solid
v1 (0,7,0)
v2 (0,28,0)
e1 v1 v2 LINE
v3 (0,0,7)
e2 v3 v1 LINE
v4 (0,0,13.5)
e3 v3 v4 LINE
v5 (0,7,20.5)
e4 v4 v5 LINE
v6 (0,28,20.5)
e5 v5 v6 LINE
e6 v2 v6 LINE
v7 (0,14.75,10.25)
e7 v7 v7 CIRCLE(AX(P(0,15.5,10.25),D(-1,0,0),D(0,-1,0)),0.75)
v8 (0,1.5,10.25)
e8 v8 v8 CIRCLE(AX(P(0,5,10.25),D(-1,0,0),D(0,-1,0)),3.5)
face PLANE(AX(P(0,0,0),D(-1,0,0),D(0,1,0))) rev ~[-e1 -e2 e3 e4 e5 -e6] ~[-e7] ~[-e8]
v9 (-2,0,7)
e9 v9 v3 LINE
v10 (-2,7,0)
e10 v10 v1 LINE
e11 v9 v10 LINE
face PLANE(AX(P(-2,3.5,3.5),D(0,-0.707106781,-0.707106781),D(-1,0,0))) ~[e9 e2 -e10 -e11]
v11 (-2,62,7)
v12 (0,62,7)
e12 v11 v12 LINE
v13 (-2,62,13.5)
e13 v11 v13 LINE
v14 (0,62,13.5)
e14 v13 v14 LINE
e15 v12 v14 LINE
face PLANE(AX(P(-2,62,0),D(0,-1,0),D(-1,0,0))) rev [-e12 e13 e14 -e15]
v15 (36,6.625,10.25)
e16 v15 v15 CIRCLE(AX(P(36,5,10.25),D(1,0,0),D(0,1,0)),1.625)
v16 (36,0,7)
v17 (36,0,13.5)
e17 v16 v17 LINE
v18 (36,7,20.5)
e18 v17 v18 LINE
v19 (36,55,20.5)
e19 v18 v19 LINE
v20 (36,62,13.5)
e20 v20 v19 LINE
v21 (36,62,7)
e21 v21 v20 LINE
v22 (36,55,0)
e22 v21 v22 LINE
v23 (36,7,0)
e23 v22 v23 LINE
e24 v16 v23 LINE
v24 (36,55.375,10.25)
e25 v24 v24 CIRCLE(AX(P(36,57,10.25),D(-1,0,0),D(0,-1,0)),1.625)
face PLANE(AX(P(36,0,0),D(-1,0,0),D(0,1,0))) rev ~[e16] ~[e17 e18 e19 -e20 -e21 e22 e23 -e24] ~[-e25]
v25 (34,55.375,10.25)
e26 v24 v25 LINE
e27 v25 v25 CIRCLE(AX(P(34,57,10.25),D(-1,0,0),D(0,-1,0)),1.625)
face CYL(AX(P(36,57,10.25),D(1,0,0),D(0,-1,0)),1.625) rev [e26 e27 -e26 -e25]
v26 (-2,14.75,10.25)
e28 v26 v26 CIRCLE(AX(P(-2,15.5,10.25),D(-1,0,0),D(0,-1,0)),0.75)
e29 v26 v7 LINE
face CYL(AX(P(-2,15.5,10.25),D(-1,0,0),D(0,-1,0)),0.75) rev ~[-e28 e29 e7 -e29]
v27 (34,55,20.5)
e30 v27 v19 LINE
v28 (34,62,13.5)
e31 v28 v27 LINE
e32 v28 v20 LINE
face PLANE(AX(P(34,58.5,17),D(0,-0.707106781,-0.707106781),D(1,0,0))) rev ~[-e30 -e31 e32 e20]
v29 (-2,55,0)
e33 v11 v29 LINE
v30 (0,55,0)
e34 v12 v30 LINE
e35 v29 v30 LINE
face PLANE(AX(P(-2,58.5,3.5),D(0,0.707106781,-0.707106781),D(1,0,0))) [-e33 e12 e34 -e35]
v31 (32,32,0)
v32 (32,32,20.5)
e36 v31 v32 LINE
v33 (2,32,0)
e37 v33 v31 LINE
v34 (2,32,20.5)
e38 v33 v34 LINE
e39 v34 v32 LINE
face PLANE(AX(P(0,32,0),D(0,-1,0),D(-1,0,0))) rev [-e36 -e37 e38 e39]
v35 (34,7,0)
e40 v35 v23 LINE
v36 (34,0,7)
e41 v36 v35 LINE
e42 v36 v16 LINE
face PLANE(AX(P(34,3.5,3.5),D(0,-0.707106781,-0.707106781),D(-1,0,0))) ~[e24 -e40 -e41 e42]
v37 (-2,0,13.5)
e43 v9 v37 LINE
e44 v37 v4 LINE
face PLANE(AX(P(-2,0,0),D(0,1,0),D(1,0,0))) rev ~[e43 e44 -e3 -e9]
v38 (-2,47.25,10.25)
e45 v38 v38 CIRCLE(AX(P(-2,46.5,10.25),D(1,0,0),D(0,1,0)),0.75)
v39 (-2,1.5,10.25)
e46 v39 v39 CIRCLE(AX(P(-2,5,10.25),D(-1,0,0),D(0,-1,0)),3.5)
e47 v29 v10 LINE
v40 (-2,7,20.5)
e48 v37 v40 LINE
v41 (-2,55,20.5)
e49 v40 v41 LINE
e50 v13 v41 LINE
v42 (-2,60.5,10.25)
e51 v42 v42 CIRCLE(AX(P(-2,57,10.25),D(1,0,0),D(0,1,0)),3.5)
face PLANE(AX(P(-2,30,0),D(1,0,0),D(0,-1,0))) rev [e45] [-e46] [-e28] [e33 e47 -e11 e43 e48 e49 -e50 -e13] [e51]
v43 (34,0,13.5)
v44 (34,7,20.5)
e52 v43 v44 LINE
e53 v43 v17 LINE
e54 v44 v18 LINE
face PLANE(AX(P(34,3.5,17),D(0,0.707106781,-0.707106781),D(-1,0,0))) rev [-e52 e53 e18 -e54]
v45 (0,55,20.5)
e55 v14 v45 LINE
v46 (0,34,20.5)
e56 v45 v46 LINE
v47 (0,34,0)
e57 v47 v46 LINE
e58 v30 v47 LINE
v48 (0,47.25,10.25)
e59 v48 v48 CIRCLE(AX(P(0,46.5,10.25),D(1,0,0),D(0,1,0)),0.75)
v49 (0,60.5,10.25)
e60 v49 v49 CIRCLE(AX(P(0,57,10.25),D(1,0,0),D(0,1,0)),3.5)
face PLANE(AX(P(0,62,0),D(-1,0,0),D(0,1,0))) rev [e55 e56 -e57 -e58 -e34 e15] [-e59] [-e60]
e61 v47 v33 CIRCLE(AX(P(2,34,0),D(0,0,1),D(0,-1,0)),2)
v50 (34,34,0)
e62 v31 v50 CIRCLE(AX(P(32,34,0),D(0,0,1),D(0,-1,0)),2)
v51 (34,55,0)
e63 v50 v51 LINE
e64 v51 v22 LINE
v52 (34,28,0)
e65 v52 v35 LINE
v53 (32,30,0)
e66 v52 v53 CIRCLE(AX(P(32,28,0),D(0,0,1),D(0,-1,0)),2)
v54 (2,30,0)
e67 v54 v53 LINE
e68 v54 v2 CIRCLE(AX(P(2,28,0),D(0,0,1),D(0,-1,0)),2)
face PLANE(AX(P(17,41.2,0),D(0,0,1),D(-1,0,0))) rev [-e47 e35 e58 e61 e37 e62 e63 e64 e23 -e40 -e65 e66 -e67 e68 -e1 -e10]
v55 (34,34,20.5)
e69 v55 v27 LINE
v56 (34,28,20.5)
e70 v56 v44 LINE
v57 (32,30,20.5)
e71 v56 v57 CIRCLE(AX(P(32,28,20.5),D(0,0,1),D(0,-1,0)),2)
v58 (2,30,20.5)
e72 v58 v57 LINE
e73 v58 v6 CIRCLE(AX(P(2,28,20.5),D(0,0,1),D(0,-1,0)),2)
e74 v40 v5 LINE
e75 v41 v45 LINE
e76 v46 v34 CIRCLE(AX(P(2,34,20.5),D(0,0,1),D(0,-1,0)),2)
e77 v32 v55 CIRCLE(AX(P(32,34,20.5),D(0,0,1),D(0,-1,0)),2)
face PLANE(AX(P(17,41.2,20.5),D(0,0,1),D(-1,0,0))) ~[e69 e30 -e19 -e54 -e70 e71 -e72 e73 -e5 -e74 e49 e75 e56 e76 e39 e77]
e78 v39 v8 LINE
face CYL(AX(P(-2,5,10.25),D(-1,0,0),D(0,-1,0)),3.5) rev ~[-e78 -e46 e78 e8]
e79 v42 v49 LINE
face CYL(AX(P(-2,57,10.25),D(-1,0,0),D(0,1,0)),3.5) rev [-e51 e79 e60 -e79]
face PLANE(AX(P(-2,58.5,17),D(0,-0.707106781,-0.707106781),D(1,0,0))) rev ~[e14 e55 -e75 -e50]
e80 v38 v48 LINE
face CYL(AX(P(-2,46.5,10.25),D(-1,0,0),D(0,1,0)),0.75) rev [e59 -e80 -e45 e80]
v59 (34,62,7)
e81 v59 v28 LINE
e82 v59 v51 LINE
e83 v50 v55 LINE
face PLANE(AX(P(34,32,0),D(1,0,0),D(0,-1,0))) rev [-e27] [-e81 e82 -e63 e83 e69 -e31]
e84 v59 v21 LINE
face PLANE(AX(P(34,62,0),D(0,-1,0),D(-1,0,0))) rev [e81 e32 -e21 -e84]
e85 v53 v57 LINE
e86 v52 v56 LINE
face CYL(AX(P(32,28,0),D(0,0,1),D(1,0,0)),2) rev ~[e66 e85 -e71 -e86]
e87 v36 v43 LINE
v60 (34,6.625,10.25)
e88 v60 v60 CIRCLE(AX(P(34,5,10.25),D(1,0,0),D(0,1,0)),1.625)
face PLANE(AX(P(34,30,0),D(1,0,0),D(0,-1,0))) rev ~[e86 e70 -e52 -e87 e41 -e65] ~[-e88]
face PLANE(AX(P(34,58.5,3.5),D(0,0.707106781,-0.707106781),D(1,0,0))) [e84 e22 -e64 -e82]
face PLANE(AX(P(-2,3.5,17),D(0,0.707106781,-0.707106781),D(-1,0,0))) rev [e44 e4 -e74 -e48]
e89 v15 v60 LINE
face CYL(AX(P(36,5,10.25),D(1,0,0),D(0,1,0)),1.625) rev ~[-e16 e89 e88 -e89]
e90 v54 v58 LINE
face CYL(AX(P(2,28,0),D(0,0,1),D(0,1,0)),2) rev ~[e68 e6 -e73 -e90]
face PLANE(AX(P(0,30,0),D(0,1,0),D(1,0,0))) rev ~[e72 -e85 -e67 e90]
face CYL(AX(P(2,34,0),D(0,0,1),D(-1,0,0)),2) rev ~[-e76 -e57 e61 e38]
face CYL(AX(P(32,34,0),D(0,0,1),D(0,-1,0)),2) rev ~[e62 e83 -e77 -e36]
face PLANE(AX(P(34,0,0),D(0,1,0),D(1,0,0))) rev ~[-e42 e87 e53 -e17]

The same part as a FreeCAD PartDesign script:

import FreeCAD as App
import Part
import Sketcher
from FreeCAD import Vector
Q = App.Units.Quantity


def edges_at(feature, points):
    """Names of the edges that pass closest to the given points."""
    edges = feature.Shape.Edges
    near = lambda p: min(range(len(edges)), key=lambda i: edges[i].distToShape(Part.Vertex(*p))[0])
    return sorted({f"Edge{near(p) + 1}" for p in points})


def add_polygon(sketch, points):
    """Adds a closed chain of lines whose ends are joined by coincident constraints."""
    first, n = sketch.GeometryCount, len(points)
    for a, b in zip(points, points[1:] + points[:1]):
        sketch.addGeometry(Part.LineSegment(App.Vector(*a, 0), App.Vector(*b, 0)), False)
    for i in range(n):
        sketch.addConstraint(Sketcher.Constraint("Coincident", first + i, 2, first + (i + 1) % n, 1))

doc = App.newDocument("Part")
params = doc.addObject("Spreadsheet::Sheet", "Params")
for row, (alias, value) in enumerate([
    ("sketch1_width", "2 mm"),
    ("sketch1_width2", "34 mm"),
    ("sketch1_height", "30 mm"),
    ("sketch1_height2", "32 mm"),
    ("pad1_length", "20.5 mm"),
    ("chamfer_size", "7 mm"),
    ("sketch2_diameter", "7 mm"),
    ("sketch2_diameter2", "1.5 mm"),
    ("pocket1_length", "25 mm"),
    ("sketch3_diameter", "3.25 mm"),
    ("pocket2_length", "25 mm"),
    ("fillet_radius", "2 mm"),
], start=1):
    params.set(f"A{row}", alias)
    params.set(f"B{row}", "=" + value)
    params.setAlias(f"B{row}", alias)

body = doc.addObject("PartDesign::Body", "Body")

# Sketch on XY plane
sketch1 = body.newObject("Sketcher::SketchObject", "Sketch")
sketch1.AttachmentSupport = (doc.getObject("XY_Plane"), [""])
sketch1.MapMode = "FlatFace"
add_polygon(sketch1, [(-2, 0), (0, 0), (0, 30), (34, 30), (34, 0), (36, 0), (36, 32), (-2, 32)])  # lines 0-7
sketch1.addConstraint(Sketcher.Constraint("Horizontal", 0))
sketch1.addConstraint(Sketcher.Constraint("Vertical", 1))
sketch1.addConstraint(Sketcher.Constraint("Horizontal", 2))
sketch1.addConstraint(Sketcher.Constraint("Vertical", 3))
sketch1.addConstraint(Sketcher.Constraint("Horizontal", 4))
sketch1.addConstraint(Sketcher.Constraint("Vertical", 5))
sketch1.addConstraint(Sketcher.Constraint("Horizontal", 6))
sketch1.addConstraint(Sketcher.Constraint("Vertical", 7))
sketch1.addConstraint(Sketcher.Constraint("Coincident", 0, 2, -1, 1))
sketch1.addConstraint(Sketcher.Constraint("PointOnObject", 3, 2, -1))
sketch1.addConstraint(Sketcher.Constraint("Equal", 0, 4))
sketch1.addConstraint(Sketcher.Constraint("DistanceX", 0, 1, 0, 2, Q("2 mm")))
sketch1.addConstraint(Sketcher.Constraint("DistanceX", 2, 1, 2, 2, Q("34 mm")))
sketch1.addConstraint(Sketcher.Constraint("DistanceY", 1, 1, 1, 2, Q("30 mm")))
sketch1.addConstraint(Sketcher.Constraint("DistanceY", 5, 1, 5, 2, Q("32 mm")))
sketch1.setExpression("Constraints[19]", "Params.sketch1_width")
sketch1.setExpression("Constraints[20]", "Params.sketch1_width2")
sketch1.setExpression("Constraints[21]", "Params.sketch1_height")
sketch1.setExpression("Constraints[22]", "Params.sketch1_height2")
pad1 = body.newObject("PartDesign::Pad", "Pad")
pad1.Profile = sketch1
pad1.setExpression("Length", "Params.pad1_length")
doc.recompute()

chamfer = body.newObject("PartDesign::Chamfer", "Chamfer")
chamfer.Base = (pad1, edges_at(pad1, [
    (-1, 0, 0),
    (-1, 0, 20.5),
    (35, 0, 0),
    (35, 0, 20.5),
]))
chamfer.setExpression("Size", "Params.chamfer_size")

# Sketch on YZ plane
sketch2 = body.newObject("Sketcher::SketchObject", "Sketch001")
sketch2.AttachmentSupport = (doc.getObject("YZ_Plane"), [""])
sketch2.MapMode = "FlatFace"
sketch2.AttachmentOffset = App.Placement(Vector(0, 0, -2), App.Rotation())
sketch2.addGeometry(Part.Circle(Vector(5, 10.2, 0), Vector(0, 0, 1), 3.5), False)
sketch2.addGeometry(Part.Circle(Vector(15.5, 10.2, 0), Vector(0, 0, 1), 0.8), False)
sketch2.addConstraint(Sketcher.Constraint("Horizontal", 0, 3, 1, 3))
sketch2.addConstraint(Sketcher.Constraint("Diameter", 0, Q("7 mm")))
sketch2.addConstraint(Sketcher.Constraint("Diameter", 1, Q("1.5 mm")))
sketch2.addConstraint(Sketcher.Constraint("DistanceX", -1, 1, 0, 3, Q("5 mm")))
sketch2.addConstraint(Sketcher.Constraint("DistanceX", -1, 1, 1, 3, Q("15.5 mm")))
sketch2.addConstraint(Sketcher.Constraint("DistanceY", -1, 1, 0, 3, Q("10.25 mm")))
sketch2.setExpression("Constraints[1]", "Params.sketch2_diameter")
sketch2.setExpression("Constraints[2]", "Params.sketch2_diameter2")
pocket1 = body.newObject("PartDesign::Pocket", "Pocket")
pocket1.Profile = sketch2
pocket1.setExpression("Length", "Params.pocket1_length")
pocket1.Reversed = True

# Sketch on YZ plane
sketch3 = body.newObject("Sketcher::SketchObject", "Sketch002")
sketch3.AttachmentSupport = (doc.getObject("YZ_Plane"), [""])
sketch3.MapMode = "FlatFace"
sketch3.AttachmentOffset = App.Placement(Vector(0, 0, 36), App.Rotation())
sketch3.addGeometry(Part.Circle(Vector(5, 10.2, 0), Vector(0, 0, 1), 1.6), False)
sketch3.addConstraint(Sketcher.Constraint("Diameter", 0, Q("3.25 mm")))
sketch3.addConstraint(Sketcher.Constraint("DistanceX", -1, 1, 0, 3, Q("5 mm")))
sketch3.addConstraint(Sketcher.Constraint("DistanceY", -1, 1, 0, 3, Q("10.25 mm")))
sketch3.setExpression("Constraints[0]", "Params.sketch3_diameter")
pocket2 = body.newObject("PartDesign::Pocket", "Pocket001")
pocket2.Profile = sketch3
pocket2.setExpression("Length", "Params.pocket2_length")
body2 = doc.addObject("PartDesign::Body", "Body001")
doc.recompute()

body2.BaseFeature = body
doc.recompute()

mirroring = doc.addObject("Part::Mirroring", "Mirroring")
mirroring.Source = body
mirroring.Base = Vector(17, 31, 10.25)
mirroring.Normal = Vector(0, 1, 0)
body3 = doc.addObject("PartDesign::Body", "Body002")
body3.BaseFeature = mirroring
boolean = body2.newObject("PartDesign::Boolean", "Boolean")
boolean.Type = "Fuse"
boolean.addObjects([body3])
doc.recompute()

fillet = body2.newObject("PartDesign::Fillet", "Fillet")
fillet.Base = (boolean, edges_at(boolean, [
    (0, 30, 10.25),
    (0, 32, 10.25),
    (34, 32, 10.25),
    (34, 30, 10.25),
]))
fillet.setExpression("Radius", "Params.fillet_radius")
mirroring.Visibility = False

doc.recompute()
